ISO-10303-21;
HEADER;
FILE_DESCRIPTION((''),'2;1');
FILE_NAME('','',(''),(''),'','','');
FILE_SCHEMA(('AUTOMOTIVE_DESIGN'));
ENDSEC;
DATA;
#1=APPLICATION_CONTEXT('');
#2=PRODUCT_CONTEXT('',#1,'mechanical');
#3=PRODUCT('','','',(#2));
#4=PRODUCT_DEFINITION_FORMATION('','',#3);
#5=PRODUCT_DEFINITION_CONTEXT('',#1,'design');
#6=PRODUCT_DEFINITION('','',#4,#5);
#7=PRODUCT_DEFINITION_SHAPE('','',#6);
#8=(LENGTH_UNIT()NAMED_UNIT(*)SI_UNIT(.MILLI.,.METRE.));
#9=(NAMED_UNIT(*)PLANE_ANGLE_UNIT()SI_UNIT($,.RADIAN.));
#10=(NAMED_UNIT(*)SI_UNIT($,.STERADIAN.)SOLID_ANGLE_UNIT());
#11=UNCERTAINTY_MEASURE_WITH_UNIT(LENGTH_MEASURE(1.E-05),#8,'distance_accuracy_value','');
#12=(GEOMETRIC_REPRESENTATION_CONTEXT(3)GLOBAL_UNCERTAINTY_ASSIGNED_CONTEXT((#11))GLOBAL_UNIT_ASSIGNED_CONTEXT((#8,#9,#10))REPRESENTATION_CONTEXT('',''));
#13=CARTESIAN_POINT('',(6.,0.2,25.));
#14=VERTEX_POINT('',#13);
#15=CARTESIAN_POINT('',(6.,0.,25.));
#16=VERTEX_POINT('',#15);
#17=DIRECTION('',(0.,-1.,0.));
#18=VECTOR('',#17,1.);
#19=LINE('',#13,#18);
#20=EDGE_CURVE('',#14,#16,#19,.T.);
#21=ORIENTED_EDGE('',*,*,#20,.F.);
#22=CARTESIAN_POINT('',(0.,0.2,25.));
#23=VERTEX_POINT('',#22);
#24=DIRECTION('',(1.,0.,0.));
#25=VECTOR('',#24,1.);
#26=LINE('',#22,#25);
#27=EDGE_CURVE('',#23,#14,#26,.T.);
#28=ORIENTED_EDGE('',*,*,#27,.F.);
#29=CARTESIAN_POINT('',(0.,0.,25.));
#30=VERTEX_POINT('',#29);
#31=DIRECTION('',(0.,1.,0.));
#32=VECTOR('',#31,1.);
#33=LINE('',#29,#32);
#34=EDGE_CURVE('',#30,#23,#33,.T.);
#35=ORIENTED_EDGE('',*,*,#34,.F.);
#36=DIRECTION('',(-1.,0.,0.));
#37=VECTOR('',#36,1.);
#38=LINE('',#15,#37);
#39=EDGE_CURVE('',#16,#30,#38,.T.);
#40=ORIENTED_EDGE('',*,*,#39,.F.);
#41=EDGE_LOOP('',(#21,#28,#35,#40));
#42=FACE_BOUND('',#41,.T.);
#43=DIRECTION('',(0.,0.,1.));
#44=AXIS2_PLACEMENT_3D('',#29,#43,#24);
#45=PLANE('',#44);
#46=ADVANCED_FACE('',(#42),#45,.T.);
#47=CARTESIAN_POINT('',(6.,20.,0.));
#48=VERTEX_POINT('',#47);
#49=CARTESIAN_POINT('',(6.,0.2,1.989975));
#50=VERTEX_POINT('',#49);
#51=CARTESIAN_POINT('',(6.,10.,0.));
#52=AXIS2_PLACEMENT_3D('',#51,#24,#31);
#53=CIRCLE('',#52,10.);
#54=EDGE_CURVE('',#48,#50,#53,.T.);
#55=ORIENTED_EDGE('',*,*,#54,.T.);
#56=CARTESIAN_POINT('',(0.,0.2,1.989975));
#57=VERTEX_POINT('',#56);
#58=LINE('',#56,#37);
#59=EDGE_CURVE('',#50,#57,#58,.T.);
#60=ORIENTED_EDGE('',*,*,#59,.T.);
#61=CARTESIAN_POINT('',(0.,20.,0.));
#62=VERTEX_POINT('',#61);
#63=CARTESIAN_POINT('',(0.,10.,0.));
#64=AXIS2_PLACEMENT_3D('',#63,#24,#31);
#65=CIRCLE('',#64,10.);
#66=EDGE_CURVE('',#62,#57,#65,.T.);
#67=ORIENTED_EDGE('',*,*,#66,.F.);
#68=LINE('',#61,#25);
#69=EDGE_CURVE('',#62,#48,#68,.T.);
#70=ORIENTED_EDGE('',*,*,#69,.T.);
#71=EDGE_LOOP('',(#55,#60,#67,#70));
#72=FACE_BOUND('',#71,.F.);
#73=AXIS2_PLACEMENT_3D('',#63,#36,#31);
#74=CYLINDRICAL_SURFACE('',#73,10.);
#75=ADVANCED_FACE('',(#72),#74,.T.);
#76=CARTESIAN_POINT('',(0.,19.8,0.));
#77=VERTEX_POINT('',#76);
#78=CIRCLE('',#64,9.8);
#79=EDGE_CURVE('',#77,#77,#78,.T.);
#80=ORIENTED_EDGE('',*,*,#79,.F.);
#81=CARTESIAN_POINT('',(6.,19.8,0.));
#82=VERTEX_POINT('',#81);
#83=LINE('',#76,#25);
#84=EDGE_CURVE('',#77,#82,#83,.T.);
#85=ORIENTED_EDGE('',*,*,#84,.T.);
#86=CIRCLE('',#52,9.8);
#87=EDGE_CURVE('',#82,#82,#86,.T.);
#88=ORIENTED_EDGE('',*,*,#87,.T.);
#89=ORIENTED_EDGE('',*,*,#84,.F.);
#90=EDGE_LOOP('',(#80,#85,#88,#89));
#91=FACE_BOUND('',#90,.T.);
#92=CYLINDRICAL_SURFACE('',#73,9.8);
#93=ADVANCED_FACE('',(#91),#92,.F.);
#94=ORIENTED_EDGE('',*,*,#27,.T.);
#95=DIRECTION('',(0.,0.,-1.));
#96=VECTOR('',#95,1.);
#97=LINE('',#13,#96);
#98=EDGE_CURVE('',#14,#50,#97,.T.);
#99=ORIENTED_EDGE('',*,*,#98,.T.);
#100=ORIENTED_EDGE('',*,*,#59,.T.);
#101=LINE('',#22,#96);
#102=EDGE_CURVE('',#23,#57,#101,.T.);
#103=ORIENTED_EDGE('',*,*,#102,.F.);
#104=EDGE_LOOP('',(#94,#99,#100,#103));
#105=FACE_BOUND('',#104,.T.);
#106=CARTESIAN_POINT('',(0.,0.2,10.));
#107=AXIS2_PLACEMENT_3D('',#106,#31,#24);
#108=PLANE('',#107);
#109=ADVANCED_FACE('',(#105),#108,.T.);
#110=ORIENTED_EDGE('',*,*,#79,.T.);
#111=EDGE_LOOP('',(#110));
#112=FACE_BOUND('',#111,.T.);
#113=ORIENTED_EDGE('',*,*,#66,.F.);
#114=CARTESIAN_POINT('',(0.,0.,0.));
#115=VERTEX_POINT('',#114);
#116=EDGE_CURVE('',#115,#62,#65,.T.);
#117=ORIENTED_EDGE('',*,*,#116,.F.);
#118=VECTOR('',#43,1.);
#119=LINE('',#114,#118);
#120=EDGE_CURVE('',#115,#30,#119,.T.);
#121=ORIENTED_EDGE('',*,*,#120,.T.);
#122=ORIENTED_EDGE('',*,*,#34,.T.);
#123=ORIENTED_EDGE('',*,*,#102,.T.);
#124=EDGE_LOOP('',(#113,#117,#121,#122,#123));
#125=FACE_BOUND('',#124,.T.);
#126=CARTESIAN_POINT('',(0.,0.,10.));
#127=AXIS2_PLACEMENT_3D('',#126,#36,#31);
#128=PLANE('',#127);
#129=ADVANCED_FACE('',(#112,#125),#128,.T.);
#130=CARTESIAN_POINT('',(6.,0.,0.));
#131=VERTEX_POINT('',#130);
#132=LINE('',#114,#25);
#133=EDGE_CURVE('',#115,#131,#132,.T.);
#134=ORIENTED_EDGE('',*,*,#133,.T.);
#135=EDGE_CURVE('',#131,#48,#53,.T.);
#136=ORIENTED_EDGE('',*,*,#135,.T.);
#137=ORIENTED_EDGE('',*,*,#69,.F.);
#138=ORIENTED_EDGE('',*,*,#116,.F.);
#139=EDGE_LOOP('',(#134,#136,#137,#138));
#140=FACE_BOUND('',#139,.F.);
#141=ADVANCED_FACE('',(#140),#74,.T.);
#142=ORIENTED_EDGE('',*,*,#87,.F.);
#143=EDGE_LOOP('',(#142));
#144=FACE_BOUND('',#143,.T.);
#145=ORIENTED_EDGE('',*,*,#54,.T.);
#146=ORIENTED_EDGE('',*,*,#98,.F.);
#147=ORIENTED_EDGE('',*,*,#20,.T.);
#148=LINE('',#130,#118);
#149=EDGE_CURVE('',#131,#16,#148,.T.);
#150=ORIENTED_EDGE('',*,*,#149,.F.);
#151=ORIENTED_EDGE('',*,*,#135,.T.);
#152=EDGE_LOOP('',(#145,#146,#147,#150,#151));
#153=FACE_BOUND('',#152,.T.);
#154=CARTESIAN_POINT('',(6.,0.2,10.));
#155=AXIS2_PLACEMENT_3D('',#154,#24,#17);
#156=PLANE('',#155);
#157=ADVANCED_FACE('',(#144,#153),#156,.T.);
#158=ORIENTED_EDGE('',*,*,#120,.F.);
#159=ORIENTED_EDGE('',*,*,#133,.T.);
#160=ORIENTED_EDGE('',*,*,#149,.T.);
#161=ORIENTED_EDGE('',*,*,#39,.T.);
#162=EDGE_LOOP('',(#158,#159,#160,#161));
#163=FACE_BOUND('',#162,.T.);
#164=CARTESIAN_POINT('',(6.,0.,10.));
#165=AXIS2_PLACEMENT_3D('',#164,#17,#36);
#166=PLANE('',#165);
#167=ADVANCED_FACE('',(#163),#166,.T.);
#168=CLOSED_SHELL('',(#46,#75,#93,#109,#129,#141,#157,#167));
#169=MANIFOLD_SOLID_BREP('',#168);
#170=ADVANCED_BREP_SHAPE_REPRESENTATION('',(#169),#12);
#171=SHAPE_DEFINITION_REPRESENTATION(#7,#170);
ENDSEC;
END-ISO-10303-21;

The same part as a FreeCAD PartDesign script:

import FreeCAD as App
import Part
import Sketcher
from FreeCAD import Vector

doc = App.newDocument("Part")
body = doc.addObject("PartDesign::Body", "Body")

sketch1 = doc.addObject("Sketcher::SketchObject", "Sketch")
body.addObject(sketch1)
sketch1.AttachmentSupport = (doc.XY_Plane, [""])
sketch1.MapMode = "FlatFace"
sketch1.addGeometry([
    Part.LineSegment(Vector(0, 0.2, 0), Vector(0, 0, 0)),
    Part.LineSegment(Vector(0, 0, 0), Vector(6, 0, 0)),
    Part.LineSegment(Vector(6, 0, 0), Vector(6, 0.2, 0)),
    Part.LineSegment(Vector(6, 0.2, 0), Vector(0, 0.2, 0)),
], False)
sketch1.addConstraint([
    Sketcher.Constraint("Coincident", 0, 2, 1, 1),
    Sketcher.Constraint("Coincident", 1, 2, 2, 1),
    Sketcher.Constraint("Coincident", 2, 2, 3, 1),
    Sketcher.Constraint("Coincident", 3, 2, 0, 1),
    Sketcher.Constraint("Vertical", 0),
    Sketcher.Constraint("Horizontal", 1),
    Sketcher.Constraint("Vertical", 2),
    Sketcher.Constraint("Horizontal", 3),
    Sketcher.Constraint("Coincident", 0, 2, -1, 1),
    Sketcher.Constraint("DistanceX", 1, 1, 1, 2, 6.0),
    Sketcher.Constraint("DistanceY", 0, 2, 0, 1, 0.2),
])
pad1 = doc.addObject("PartDesign::Pad", "Pad")
body.addObject(pad1)
pad1.Profile = sketch1
pad1.Length = 10

sketch2 = doc.addObject("Sketcher::SketchObject", "Sketch001")
body.addObject(sketch2)
sketch2.AttachmentSupport = (doc.YZ_Plane, [""])
sketch2.MapMode = "FlatFace"
sketch2.addGeometry([
    Part.Circle(Vector(10, 0, 0), Vector(0, 0, 1), 10),
    Part.Circle(Vector(10, 0, 0), Vector(0, 0, 1), 9.8),
], False)
sketch2.addConstraint([
    Sketcher.Constraint("Coincident", 1, 3, 0, 3),
    Sketcher.Constraint("PointOnObject", 0, 3, -1),
    Sketcher.Constraint("Diameter", 0, 20.0),
    Sketcher.Constraint("DistanceX", -1, 1, 0, 3, 10.0),
    Sketcher.Constraint("Diameter", 1, 19.6),
])
pad2 = doc.addObject("PartDesign::Pad", "Pad001")
body.addObject(pad2)
pad2.Profile = sketch2
pad2.Length = 6

sketch3 = doc.addObject("Sketcher::SketchObject", "Sketch002")
body.addObject(sketch3)
sketch3.AttachmentSupport = (doc.XY_Plane, [""])
sketch3.MapMode = "FlatFace"
sketch3.AttachmentOffset = App.Placement(Vector(0, 0, 10), App.Rotation())
sketch3.addGeometry([
    Part.LineSegment(Vector(0, 0.2, 0), Vector(0, 0, 0)),
    Part.LineSegment(Vector(0, 0, 0), Vector(6, 0, 0)),
    Part.LineSegment(Vector(6, 0, 0), Vector(6, 0.2, 0)),
    Part.LineSegment(Vector(6, 0.2, 0), Vector(0, 0.2, 0)),
], False)
sketch3.addConstraint([
    Sketcher.Constraint("Coincident", 0, 2, 1, 1),
    Sketcher.Constraint("Coincident", 1, 2, 2, 1),
    Sketcher.Constraint("Coincident", 2, 2, 3, 1),
    Sketcher.Constraint("Coincident", 3, 2, 0, 1),
    Sketcher.Constraint("Vertical", 0),
    Sketcher.Constraint("Horizontal", 1),
    Sketcher.Constraint("Vertical", 2),
    Sketcher.Constraint("Horizontal", 3),
    Sketcher.Constraint("Coincident", 0, 2, -1, 1),
    Sketcher.Constraint("DistanceX", 1, 1, 1, 2, 6.0),
    Sketcher.Constraint("DistanceY", 0, 2, 0, 1, 0.2),
])
pad3 = doc.addObject("PartDesign::Pad", "Pad002")
body.addObject(pad3)
pad3.Profile = sketch3
pad3.Length = 15

doc.recompute()
